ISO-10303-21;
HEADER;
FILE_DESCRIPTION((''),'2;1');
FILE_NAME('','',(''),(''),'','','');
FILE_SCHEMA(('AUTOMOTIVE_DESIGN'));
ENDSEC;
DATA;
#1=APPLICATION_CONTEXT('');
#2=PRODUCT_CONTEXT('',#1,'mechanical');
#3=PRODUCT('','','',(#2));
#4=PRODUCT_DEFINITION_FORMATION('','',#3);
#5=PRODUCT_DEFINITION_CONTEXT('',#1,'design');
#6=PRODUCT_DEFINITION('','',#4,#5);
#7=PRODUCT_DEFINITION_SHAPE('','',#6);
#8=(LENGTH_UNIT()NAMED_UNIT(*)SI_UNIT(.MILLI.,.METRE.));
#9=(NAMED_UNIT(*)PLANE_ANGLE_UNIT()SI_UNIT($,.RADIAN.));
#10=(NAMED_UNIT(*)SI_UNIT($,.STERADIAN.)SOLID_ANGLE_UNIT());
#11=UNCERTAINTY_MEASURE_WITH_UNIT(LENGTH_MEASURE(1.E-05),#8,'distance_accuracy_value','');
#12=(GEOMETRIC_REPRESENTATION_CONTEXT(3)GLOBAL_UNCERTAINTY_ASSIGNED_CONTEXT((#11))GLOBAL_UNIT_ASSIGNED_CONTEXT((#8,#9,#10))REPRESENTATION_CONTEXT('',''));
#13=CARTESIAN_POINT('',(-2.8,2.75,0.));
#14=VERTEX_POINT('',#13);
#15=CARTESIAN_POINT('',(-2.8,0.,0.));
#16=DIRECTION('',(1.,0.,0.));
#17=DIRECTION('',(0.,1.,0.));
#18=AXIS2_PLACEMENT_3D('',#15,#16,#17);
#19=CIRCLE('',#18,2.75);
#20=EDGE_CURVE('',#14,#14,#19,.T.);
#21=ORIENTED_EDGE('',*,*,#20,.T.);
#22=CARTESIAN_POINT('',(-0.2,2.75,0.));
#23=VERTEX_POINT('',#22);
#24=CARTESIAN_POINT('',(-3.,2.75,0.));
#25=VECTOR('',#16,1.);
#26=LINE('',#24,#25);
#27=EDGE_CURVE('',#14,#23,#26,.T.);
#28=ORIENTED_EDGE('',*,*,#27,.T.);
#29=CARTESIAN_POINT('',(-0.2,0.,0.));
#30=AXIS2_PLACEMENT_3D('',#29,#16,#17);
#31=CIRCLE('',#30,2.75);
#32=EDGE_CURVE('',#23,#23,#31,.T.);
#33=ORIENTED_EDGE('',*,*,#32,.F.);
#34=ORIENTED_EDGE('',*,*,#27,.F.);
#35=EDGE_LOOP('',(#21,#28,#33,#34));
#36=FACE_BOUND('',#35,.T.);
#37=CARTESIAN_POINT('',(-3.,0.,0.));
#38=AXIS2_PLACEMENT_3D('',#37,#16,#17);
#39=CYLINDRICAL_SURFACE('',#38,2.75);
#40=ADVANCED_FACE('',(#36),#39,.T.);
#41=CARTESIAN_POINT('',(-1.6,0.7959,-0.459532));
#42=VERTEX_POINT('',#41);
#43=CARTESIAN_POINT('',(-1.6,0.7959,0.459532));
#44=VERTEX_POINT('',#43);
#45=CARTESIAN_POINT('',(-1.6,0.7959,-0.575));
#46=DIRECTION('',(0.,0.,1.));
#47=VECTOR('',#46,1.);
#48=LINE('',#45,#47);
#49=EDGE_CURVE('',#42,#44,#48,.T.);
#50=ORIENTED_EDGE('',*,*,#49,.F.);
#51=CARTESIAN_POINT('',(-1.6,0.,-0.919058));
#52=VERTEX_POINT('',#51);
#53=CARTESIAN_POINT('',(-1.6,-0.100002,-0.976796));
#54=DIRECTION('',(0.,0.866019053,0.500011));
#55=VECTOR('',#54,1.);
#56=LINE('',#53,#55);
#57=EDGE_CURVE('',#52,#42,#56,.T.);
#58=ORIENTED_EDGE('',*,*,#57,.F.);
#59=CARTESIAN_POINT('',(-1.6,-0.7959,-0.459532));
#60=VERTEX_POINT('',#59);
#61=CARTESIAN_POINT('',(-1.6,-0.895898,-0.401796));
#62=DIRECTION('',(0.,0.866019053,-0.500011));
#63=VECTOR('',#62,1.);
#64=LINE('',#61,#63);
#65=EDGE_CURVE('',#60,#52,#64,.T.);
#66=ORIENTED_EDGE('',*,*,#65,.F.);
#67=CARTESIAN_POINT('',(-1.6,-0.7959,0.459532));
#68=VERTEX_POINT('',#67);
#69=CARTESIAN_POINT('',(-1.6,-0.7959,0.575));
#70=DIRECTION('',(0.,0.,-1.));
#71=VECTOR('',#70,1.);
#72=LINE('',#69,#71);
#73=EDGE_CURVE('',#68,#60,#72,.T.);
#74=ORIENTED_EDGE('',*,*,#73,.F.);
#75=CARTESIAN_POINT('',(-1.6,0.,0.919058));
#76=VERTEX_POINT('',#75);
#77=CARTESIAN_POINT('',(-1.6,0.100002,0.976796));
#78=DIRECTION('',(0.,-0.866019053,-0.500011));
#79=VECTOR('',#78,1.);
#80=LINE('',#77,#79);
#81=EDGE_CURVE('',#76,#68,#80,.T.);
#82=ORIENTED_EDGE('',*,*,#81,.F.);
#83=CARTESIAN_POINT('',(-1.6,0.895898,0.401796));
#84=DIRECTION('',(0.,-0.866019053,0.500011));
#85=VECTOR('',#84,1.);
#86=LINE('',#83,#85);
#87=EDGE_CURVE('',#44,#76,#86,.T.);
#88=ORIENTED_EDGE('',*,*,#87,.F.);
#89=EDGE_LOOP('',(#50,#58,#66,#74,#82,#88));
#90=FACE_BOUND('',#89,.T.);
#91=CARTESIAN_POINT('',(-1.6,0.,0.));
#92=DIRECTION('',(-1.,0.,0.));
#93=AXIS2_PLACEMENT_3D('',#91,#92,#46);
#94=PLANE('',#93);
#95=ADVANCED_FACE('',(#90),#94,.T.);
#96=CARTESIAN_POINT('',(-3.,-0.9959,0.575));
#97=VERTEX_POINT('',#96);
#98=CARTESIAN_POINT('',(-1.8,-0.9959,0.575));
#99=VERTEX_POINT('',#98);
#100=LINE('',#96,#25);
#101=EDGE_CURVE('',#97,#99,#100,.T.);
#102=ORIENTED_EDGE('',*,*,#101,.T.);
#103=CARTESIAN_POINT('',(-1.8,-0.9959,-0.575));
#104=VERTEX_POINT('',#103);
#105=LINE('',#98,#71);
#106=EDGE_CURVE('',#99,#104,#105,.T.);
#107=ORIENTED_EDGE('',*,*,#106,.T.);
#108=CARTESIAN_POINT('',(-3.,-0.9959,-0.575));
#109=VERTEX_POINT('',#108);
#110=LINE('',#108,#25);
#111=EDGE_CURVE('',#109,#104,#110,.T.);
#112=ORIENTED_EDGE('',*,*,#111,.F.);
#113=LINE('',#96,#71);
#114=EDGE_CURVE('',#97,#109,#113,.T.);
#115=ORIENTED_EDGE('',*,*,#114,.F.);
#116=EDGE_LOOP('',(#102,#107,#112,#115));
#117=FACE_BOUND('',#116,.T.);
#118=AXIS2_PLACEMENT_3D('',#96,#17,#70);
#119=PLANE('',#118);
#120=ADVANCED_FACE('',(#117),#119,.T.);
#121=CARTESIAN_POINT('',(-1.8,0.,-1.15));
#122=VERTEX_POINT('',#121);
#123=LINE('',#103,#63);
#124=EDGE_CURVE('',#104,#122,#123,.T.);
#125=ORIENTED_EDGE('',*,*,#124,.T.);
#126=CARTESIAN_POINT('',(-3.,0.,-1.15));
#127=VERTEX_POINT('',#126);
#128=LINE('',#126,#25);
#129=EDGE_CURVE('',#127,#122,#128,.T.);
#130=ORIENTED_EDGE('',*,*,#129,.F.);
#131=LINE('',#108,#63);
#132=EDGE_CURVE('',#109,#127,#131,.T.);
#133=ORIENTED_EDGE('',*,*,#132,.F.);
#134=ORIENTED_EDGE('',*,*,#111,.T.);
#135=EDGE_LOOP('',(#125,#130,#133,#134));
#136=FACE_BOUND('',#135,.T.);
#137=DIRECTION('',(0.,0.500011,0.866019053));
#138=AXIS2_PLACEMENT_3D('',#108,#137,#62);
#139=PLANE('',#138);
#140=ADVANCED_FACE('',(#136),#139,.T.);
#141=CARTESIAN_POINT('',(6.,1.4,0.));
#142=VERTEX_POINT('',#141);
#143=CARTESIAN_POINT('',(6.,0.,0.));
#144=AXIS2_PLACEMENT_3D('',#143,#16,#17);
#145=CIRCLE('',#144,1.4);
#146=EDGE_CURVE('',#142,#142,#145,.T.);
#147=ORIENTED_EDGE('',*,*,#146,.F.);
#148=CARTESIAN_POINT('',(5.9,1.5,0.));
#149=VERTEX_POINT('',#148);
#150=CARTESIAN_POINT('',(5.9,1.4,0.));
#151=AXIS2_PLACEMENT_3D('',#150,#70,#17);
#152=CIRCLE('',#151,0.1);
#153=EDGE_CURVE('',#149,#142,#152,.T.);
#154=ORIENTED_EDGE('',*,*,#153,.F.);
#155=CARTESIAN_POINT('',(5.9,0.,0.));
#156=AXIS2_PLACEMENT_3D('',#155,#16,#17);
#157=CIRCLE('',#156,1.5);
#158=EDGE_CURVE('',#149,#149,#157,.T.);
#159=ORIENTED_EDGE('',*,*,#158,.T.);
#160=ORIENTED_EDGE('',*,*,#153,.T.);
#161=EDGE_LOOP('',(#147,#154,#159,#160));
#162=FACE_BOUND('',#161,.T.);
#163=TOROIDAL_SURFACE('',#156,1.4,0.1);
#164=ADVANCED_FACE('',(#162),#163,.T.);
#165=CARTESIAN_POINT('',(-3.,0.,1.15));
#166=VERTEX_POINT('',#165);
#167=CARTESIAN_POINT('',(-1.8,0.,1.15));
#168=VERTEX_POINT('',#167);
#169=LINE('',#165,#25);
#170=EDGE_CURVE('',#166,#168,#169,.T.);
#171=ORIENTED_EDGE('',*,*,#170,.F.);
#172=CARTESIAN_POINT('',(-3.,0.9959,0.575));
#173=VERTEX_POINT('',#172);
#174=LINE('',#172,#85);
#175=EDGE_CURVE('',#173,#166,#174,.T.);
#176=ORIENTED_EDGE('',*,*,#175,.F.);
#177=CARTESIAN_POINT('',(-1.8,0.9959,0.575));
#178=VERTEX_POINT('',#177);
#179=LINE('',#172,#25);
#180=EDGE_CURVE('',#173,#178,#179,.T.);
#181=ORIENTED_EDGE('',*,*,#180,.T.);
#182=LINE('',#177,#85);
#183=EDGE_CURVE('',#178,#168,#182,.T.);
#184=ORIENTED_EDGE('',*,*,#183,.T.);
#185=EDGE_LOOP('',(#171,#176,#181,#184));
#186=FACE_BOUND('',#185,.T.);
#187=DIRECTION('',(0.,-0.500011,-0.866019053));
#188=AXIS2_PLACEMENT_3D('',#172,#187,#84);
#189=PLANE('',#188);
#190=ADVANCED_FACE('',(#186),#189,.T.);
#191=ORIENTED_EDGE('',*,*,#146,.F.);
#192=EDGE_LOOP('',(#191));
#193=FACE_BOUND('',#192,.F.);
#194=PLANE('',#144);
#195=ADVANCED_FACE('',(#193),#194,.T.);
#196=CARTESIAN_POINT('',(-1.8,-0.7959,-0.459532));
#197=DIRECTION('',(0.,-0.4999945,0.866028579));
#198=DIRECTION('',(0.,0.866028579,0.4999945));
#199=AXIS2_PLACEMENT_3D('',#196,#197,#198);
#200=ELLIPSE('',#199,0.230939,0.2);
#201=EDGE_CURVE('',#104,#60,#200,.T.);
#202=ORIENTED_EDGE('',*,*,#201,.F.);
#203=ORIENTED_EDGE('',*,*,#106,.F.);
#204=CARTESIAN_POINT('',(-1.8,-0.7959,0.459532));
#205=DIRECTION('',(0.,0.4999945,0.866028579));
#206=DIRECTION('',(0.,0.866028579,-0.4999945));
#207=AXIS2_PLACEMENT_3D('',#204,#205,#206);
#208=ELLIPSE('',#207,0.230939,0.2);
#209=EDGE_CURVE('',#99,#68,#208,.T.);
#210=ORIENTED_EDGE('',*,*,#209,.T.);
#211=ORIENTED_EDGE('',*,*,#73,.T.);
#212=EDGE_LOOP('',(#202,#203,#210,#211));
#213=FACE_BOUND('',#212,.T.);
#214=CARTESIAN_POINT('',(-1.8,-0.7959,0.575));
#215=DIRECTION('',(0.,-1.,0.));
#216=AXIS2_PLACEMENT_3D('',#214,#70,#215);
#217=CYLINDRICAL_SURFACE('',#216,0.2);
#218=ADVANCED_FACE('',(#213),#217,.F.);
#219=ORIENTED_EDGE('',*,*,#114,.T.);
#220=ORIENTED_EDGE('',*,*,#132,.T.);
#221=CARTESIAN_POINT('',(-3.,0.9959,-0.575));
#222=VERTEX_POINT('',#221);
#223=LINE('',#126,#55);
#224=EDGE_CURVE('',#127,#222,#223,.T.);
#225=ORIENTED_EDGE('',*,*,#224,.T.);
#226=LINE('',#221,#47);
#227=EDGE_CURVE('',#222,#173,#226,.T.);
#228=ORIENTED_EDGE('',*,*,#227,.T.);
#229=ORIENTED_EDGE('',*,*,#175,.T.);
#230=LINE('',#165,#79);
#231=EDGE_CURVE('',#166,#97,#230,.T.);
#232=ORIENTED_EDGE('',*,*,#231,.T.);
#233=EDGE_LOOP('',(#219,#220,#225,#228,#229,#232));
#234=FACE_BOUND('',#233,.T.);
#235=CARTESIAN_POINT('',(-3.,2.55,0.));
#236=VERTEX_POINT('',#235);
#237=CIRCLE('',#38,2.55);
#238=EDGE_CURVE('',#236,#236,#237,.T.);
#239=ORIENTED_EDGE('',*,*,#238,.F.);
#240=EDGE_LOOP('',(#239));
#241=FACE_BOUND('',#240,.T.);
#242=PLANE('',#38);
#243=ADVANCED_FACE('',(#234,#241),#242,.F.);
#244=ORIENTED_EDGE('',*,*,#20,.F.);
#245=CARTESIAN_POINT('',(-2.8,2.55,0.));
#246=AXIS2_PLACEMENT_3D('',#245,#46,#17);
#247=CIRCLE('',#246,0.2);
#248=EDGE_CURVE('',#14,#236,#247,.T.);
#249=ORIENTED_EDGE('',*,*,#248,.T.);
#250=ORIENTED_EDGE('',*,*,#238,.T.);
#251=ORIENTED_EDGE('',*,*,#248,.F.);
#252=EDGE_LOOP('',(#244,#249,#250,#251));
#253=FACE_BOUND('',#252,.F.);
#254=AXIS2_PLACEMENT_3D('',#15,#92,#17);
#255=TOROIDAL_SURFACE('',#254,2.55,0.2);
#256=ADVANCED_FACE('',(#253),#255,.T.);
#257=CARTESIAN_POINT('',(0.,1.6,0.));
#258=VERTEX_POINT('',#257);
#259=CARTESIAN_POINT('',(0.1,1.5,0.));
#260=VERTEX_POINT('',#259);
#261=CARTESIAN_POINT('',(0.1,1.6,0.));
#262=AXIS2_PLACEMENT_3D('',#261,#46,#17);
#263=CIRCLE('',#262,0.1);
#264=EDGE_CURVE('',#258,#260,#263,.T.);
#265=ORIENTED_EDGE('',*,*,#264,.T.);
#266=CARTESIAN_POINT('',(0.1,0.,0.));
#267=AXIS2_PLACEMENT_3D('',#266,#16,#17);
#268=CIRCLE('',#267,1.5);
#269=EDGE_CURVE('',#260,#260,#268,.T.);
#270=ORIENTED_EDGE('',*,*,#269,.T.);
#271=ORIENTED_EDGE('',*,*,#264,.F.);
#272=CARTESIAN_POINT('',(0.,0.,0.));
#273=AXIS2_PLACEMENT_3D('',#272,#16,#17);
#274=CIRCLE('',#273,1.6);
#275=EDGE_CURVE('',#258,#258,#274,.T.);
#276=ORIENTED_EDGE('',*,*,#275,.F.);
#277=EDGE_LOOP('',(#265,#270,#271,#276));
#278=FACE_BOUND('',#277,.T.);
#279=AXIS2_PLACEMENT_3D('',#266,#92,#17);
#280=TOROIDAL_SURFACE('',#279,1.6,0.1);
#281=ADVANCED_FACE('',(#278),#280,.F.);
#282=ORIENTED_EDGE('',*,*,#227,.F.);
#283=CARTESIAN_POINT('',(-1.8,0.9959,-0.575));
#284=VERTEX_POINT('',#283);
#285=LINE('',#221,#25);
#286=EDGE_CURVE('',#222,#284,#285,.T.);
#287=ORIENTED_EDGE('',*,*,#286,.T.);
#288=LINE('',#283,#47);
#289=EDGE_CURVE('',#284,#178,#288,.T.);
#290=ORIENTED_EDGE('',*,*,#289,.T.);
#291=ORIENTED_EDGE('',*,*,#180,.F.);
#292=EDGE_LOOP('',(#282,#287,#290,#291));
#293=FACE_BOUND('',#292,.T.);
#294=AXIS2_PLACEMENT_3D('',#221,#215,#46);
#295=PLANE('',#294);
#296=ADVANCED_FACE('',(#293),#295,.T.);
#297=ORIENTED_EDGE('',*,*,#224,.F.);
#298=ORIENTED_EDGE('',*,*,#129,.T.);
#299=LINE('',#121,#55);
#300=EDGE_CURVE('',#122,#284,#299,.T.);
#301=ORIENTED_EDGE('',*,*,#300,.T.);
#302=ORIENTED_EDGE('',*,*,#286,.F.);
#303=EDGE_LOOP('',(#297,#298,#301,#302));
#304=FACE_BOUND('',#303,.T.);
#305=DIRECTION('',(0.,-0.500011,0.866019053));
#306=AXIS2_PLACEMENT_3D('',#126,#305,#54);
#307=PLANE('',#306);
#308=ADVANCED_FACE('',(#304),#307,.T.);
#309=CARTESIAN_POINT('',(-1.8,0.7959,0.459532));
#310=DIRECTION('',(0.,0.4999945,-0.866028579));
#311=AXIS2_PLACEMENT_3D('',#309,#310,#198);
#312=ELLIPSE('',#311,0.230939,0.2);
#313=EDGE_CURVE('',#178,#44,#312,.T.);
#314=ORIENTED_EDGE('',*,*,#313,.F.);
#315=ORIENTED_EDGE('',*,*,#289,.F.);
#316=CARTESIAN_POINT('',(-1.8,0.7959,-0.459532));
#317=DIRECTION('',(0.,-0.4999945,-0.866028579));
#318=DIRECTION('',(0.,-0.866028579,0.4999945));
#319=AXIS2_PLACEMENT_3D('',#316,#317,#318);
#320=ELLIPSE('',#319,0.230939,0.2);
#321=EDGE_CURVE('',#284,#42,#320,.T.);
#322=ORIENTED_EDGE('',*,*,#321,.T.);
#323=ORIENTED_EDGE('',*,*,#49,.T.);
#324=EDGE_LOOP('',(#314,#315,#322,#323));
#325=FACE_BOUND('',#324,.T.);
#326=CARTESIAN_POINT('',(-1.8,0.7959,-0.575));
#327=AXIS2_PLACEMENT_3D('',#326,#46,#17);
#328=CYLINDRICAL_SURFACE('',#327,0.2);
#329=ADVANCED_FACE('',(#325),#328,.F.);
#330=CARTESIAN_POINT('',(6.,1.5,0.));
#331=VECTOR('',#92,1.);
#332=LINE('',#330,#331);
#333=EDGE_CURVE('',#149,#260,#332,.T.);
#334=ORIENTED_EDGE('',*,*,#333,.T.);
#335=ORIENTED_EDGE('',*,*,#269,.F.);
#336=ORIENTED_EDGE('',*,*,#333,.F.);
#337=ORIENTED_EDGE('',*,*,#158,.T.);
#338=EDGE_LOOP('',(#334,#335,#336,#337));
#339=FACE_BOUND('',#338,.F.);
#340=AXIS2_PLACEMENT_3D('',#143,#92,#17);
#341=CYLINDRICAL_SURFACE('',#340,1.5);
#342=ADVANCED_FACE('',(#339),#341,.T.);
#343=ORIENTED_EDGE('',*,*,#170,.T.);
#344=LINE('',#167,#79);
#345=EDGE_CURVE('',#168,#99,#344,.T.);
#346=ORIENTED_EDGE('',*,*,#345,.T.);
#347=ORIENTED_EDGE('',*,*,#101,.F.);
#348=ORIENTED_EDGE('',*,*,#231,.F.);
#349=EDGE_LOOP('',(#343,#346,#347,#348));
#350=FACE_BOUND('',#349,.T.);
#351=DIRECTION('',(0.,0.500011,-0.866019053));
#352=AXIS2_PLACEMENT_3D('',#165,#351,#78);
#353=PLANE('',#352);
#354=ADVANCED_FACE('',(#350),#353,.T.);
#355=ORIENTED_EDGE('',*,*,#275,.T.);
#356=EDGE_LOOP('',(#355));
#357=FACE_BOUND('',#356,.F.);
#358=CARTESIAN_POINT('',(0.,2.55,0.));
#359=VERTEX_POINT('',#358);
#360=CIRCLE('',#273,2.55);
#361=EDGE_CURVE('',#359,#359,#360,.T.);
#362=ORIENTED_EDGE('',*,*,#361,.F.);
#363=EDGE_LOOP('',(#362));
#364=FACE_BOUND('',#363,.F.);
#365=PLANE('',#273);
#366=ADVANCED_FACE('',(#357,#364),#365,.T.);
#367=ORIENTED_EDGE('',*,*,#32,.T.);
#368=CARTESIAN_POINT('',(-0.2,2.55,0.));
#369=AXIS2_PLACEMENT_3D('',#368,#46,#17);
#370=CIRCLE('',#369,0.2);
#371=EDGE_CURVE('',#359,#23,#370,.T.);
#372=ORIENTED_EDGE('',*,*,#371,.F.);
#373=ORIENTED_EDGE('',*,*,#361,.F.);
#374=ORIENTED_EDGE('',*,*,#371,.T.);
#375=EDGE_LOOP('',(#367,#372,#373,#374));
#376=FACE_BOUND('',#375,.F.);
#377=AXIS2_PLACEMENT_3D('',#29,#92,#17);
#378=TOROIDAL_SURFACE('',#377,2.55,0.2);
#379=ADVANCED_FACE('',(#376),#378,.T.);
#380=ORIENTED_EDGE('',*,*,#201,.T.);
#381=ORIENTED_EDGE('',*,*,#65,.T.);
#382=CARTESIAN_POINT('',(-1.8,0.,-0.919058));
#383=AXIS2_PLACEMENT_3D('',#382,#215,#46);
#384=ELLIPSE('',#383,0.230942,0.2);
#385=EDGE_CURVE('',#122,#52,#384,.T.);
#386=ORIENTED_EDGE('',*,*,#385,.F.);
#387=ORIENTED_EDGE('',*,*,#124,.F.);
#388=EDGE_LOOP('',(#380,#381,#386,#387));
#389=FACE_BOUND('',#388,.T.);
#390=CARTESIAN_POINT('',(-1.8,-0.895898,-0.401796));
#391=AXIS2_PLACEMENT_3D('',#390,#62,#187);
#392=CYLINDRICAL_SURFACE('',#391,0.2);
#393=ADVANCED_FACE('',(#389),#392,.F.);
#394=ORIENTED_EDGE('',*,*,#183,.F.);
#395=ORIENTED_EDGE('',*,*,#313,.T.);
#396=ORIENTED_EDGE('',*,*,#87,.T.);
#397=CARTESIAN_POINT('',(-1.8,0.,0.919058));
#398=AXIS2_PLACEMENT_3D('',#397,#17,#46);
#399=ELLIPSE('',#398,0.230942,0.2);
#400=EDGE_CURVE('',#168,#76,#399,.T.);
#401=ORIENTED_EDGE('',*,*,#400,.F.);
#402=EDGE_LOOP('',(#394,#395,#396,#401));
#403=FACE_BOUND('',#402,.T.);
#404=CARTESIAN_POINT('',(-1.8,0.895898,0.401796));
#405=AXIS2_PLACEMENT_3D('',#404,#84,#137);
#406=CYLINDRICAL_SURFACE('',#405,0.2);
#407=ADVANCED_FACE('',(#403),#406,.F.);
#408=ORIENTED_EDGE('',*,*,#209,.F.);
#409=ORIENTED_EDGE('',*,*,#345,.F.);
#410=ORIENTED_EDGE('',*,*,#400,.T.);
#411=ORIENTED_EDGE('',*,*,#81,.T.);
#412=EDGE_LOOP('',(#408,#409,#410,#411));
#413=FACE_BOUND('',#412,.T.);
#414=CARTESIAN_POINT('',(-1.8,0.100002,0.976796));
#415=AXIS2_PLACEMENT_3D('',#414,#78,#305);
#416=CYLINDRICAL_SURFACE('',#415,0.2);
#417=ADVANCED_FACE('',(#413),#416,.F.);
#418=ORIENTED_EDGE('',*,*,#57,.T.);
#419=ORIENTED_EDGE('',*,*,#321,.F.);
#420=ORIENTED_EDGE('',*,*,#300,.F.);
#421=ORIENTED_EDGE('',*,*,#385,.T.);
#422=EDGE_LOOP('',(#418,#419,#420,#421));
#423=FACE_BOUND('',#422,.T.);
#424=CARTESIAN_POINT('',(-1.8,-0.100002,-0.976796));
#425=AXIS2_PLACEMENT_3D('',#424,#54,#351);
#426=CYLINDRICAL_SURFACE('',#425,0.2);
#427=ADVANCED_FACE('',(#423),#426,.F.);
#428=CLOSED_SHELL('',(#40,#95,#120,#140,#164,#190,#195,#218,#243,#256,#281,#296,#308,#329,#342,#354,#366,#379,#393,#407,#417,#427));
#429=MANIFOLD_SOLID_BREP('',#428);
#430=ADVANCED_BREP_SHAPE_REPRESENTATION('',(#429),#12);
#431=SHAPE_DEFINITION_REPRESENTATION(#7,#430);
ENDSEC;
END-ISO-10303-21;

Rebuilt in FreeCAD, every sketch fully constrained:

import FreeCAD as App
import Part
import Sketcher

V = App.Vector


def edges_at(feature, points):
    """Names of the edges that pass closest to the given points."""
    edges = feature.Shape.Edges
    near = lambda p: min(range(len(edges)), key=lambda i: edges[i].distToShape(Part.Vertex(*p))[0])
    return sorted({f"Edge{near(p) + 1}" for p in points})

doc = App.newDocument("Part")
params = doc.addObject("Spreadsheet::Sheet", "Params")
for row, (alias, value) in enumerate([
    ("sketch1_width", "6 mm"),
    ("sketch1_width2", "3 mm"),
    ("sketch1_height", "1.5 mm"),
    ("sketch1_height2", "2.75 mm"),
    ("revolution_angle", "360 deg"),
    ("sketch2_height", "1.15 mm"),
    ("sketch2_length", "1.15 mm"),
    ("pocket1_length", "1.4 mm"),
    ("fillet_radius", "0.2 mm"),
    ("fillet2_radius", "0.1 mm"),
    ("fillet3_radius", "0.1 mm"),
], start=1):
    params.set(f"A{row}", alias)
    params.set(f"B{row}", "=" + value)
    params.setAlias(f"B{row}", alias)

body = doc.addObject("PartDesign::Body", "Body")

# Sketch on XY plane
sketch1 = body.newObject("Sketcher::SketchObject", "Sketch")
sketch1.AttachmentSupport = (doc.getObject("XY_Plane"), [""])
sketch1.MapMode = "FlatFace"
sketch1.addGeometry(Part.LineSegment(V(6, 1.5, 0), V(0, 1.5, 0)), False)
sketch1.addGeometry(Part.LineSegment(V(0, 1.5, 0), V(0, 2.75, 0)), False)
sketch1.addGeometry(Part.LineSegment(V(0, 2.75, 0), V(-3, 2.75, 0)), False)
sketch1.addGeometry(Part.LineSegment(V(-3, 2.75, 0), V(-3, 0, 0)), False)
sketch1.addGeometry(Part.LineSegment(V(-3, 0, 0), V(6, 0, 0)), False)
sketch1.addGeometry(Part.LineSegment(V(6, 0, 0), V(6, 1.5, 0)), False)
sketch1.addConstraint(Sketcher.Constraint("Coincident", 0, 2, 1, 1))
sketch1.addConstraint(Sketcher.Constraint("Coincident", 1, 2, 2, 1))
sketch1.addConstraint(Sketcher.Constraint("Coincident", 2, 2, 3, 1))
sketch1.addConstraint(Sketcher.Constraint("Coincident", 3, 2, 4, 1))
sketch1.addConstraint(Sketcher.Constraint("Coincident", 4, 2, 5, 1))
sketch1.addConstraint(Sketcher.Constraint("Coincident", 5, 2, 0, 1))
sketch1.addConstraint(Sketcher.Constraint("Horizontal", 0))
sketch1.addConstraint(Sketcher.Constraint("Vertical", 1))
sketch1.addConstraint(Sketcher.Constraint("Horizontal", 2))
sketch1.addConstraint(Sketcher.Constraint("Vertical", 3))
sketch1.addConstraint(Sketcher.Constraint("Horizontal", 4))
sketch1.addConstraint(Sketcher.Constraint("Vertical", 5))
sketch1.addConstraint(Sketcher.Constraint("PointOnObject", 0, 2, -2))
sketch1.addConstraint(Sketcher.Constraint("PointOnObject", 3, 2, -1))
sketch1.addConstraint(Sketcher.Constraint("DistanceX", 0, 2, 0, 1, 6.0))
sketch1.addConstraint(Sketcher.Constraint("DistanceX", 2, 2, 2, 1, 3.0))
sketch1.addConstraint(Sketcher.Constraint("DistanceY", 5, 1, 5, 2, 1.5))
sketch1.addConstraint(Sketcher.Constraint("DistanceY", 3, 2, 3, 1, 2.75))
sketch1.setExpression("Constraints[14]", "Params.sketch1_width")
sketch1.setExpression("Constraints[15]", "Params.sketch1_width2")
sketch1.setExpression("Constraints[16]", "Params.sketch1_height")
sketch1.setExpression("Constraints[17]", "Params.sketch1_height2")
revolution = body.newObject("PartDesign::Revolution", "Revolution")
revolution.Profile = sketch1
revolution.ReferenceAxis = (sketch1, ["H_Axis"])
revolution.setExpression("Angle", "Params.revolution_angle")

# Sketch on YZ plane
sketch2 = body.newObject("Sketcher::SketchObject", "Sketch001")
sketch2.AttachmentSupport = (doc.getObject("YZ_Plane"), [""])
sketch2.MapMode = "FlatFace"
sketch2.AttachmentOffset = App.Placement(V(0, 0, -3), App.Rotation())
sketch2.addGeometry(Part.LineSegment(V(-0.9959, 0.575, 0), V(0, 1.15, 0)), False)
sketch2.addGeometry(Part.LineSegment(V(0, 1.15, 0), V(0.9959, 0.575, 0)), False)
sketch2.addGeometry(Part.LineSegment(V(0.9959, 0.575, 0), V(0.9959, -0.575, 0)), False)
sketch2.addGeometry(Part.LineSegment(V(0.9959, -0.575, 0), V(0, -1.15, 0)), False)
sketch2.addGeometry(Part.LineSegment(V(0, -1.15, 0), V(-0.9959, -0.575, 0)), False)
sketch2.addGeometry(Part.LineSegment(V(-0.9959, -0.575, 0), V(-0.9959, 0.575, 0)), False)
sketch2.addConstraint(Sketcher.Constraint("Coincident", 0, 2, 1, 1))
sketch2.addConstraint(Sketcher.Constraint("Coincident", 1, 2, 2, 1))
sketch2.addConstraint(Sketcher.Constraint("Coincident", 2, 2, 3, 1))
sketch2.addConstraint(Sketcher.Constraint("Coincident", 3, 2, 4, 1))
sketch2.addConstraint(Sketcher.Constraint("Coincident", 4, 2, 5, 1))
sketch2.addConstraint(Sketcher.Constraint("Coincident", 5, 2, 0, 1))
sketch2.addConstraint(Sketcher.Constraint("Vertical", 2))
sketch2.addConstraint(Sketcher.Constraint("Vertical", 5))
sketch2.addConstraint(Sketcher.Constraint("Symmetric", 0, 2, 3, 2, -1, 1))
sketch2.addConstraint(Sketcher.Constraint("Symmetric", 1, 2, 4, 2, -1, 1))
sketch2.addConstraint(Sketcher.Constraint("PointOnObject", 0, 2, -2))
sketch2.addConstraint(Sketcher.Constraint("Parallel", 0, 3))
sketch2.addConstraint(Sketcher.Constraint("Horizontal", 2, 2, 4, 2))
sketch2.addConstraint(Sketcher.Constraint("DistanceY", 2, 2, 2, 1, 1.15))
sketch2.addConstraint(Sketcher.Constraint("Distance", 0, 1.15))
sketch2.addConstraint(Sketcher.Constraint("DistanceY", -1, 1, 0, 2, 1.15))
sketch2.setExpression("Constraints[13]", "Params.sketch2_height")
sketch2.setExpression("Constraints[14]", "Params.sketch2_length")
pocket1 = body.newObject("PartDesign::Pocket", "Pocket")
pocket1.Profile = sketch2
pocket1.setExpression("Length", "Params.pocket1_length")
pocket1.Reversed = True
doc.recompute()

fillet = body.newObject("PartDesign::Fillet", "Fillet")
fillet.Base = (pocket1, edges_at(pocket1, [
    (-1.6, 0.996, 0),
    (-1.6, 0.498, 0.863),
    (-1.6, 0.498, -0.863),
    (-1.6, -0.498, -0.863),
    (-1.6, -0.996, 0),
    (-1.6, -0.498, 0.863),
    (-3, -2.75, 0),
    (0, -2.75, 0),
]))
fillet.setExpression("Radius", "Params.fillet_radius")
doc.recompute()

fillet2 = body.newObject("PartDesign::Fillet", "Fillet001")
fillet2.Base = (fillet, edges_at(fillet, [(0, -1.5, 0)]))
fillet2.setExpression("Radius", "Params.fillet2_radius")
doc.recompute()

fillet3 = body.newObject("PartDesign::Fillet", "Fillet002")
fillet3.Base = (fillet2, edges_at(fillet2, [(6, -1.5, 0)]))
fillet3.setExpression("Radius", "Params.fillet3_radius")

doc.recompute()
